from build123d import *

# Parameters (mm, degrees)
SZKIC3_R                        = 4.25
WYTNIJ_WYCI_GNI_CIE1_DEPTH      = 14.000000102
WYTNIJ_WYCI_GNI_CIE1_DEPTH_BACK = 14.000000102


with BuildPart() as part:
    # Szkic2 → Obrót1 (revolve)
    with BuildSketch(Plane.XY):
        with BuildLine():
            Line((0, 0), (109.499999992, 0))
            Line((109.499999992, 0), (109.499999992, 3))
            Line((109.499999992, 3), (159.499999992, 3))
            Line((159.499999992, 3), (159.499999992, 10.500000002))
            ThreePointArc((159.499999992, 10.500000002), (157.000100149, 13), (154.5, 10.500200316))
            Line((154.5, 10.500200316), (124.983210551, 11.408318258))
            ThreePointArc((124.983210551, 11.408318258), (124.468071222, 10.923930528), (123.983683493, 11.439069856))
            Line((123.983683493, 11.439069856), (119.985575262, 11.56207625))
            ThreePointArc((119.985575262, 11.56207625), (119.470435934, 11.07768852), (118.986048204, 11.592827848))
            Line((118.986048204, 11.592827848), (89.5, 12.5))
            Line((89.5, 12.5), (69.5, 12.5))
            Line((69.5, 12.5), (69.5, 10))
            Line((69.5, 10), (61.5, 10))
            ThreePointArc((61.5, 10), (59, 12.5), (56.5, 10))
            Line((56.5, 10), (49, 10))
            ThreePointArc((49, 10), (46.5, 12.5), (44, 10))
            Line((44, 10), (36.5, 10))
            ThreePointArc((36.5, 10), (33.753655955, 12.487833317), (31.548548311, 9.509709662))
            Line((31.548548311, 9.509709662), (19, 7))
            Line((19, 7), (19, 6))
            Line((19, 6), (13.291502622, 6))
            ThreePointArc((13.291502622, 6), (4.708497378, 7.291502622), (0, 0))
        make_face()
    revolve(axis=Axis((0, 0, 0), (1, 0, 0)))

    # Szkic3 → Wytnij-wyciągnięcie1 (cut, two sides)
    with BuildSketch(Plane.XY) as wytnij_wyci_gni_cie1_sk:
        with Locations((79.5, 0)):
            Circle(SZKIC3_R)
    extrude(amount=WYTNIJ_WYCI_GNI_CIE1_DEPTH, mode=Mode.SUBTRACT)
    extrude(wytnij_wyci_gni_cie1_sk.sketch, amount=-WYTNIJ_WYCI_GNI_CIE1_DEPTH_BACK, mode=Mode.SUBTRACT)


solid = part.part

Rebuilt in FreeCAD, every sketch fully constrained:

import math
import FreeCAD as App
import Part
import Sketcher
from FreeCAD import Vector

doc = App.newDocument("Part")
body = doc.addObject("PartDesign::Body", "Body")

# Sketch on XY plane
sketch1 = body.newObject("Sketcher::SketchObject", "Sketch")
sketch1.AttachmentSupport = (doc.getObject("XY_Plane"), [""])
sketch1.MapMode = "FlatFace"
sketch1.addGeometry([
    Part.LineSegment(Vector(0, 0, 0), Vector(109.5, 0, 0)),  # 0
    Part.LineSegment(Vector(109.5, 0, 0), Vector(109.5, 3, 0)),  # 1
    Part.LineSegment(Vector(109.5, 3, 0), Vector(159.5, 3, 0)),  # 2
    Part.LineSegment(Vector(159.5, 3, 0), Vector(159.5, 10.5, 0)),  # 3
    Part.ArcOfCircle(Part.Circle(Vector(157, 10.5, 0), Vector(0, 0, 1), 2.5), math.radians(0), math.radians(180)),  # 4
    Part.LineSegment(Vector(154.5, 10.5, 0), Vector(125, 11.4, 0)),  # 5
    Part.ArcOfCircle(Part.Circle(Vector(124.5, 11.4, 0), Vector(0, 0, 1), 0.5), math.radians(178), math.radians(358)),  # 6
    Part.LineSegment(Vector(124, 11.4, 0), Vector(120, 11.6, 0)),  # 7
    Part.ArcOfCircle(Part.Circle(Vector(119.5, 11.6, 0), Vector(0, 0, 1), 0.5), math.radians(178), math.radians(358)),  # 8
    Part.LineSegment(Vector(119, 11.6, 0), Vector(89.5, 12.5, 0)),  # 9
    Part.LineSegment(Vector(89.5, 12.5, 0), Vector(69.5, 12.5, 0)),  # 10
    Part.LineSegment(Vector(69.5, 12.5, 0), Vector(69.5, 10, 0)),  # 11
    Part.LineSegment(Vector(69.5, 10, 0), Vector(61.5, 10, 0)),  # 12
    Part.ArcOfCircle(Part.Circle(Vector(59, 10, 0), Vector(0, 0, 1), 2.5), math.radians(0), math.radians(180)),  # 13
    Part.LineSegment(Vector(56.5, 10, 0), Vector(49, 10, 0)),  # 14
    Part.ArcOfCircle(Part.Circle(Vector(46.5, 10, 0), Vector(0, 0, 1), 2.5), math.radians(0), math.radians(180)),  # 15
    Part.LineSegment(Vector(44, 10, 0), Vector(36.5, 10, 0)),  # 16
    Part.ArcOfCircle(Part.Circle(Vector(34, 10, 0), Vector(0, 0, 1), 2.5), math.radians(0), math.radians(191)),  # 17
    Part.LineSegment(Vector(31.5, 9.5, 0), Vector(19, 7, 0)),  # 18
    Part.LineSegment(Vector(19, 7, 0), Vector(19, 6, 0)),  # 19
    Part.LineSegment(Vector(19, 6, 0), Vector(13.3, 6, 0)),  # 20
    Part.ArcOfCircle(Part.Circle(Vector(8, 0, 0), Vector(0, 0, 1), 8), math.radians(49), math.radians(180)),  # 21
], False)
sketch1.addConstraint([
    Sketcher.Constraint("Coincident", 0, 2, 1, 1),
    Sketcher.Constraint("Coincident", 1, 2, 2, 1),
    Sketcher.Constraint("Coincident", 2, 2, 3, 1),
    Sketcher.Constraint("Tangent", 3, 2, 4, 1),
    Sketcher.Constraint("Coincident", 4, 2, 5, 1),
    Sketcher.Constraint("Coincident", 5, 2, 6, 2),
    Sketcher.Constraint("Coincident", 6, 1, 7, 1),
    Sketcher.Constraint("Coincident", 7, 2, 8, 2),
    Sketcher.Constraint("Coincident", 8, 1, 9, 1),
    Sketcher.Constraint("Coincident", 9, 2, 10, 1),
    Sketcher.Constraint("Coincident", 10, 2, 11, 1),
    Sketcher.Constraint("Coincident", 11, 2, 12, 1),
    Sketcher.Constraint("Coincident", 12, 2, 13, 1),
    Sketcher.Constraint("Coincident", 13, 2, 14, 1),
    Sketcher.Constraint("Coincident", 14, 2, 15, 1),
    Sketcher.Constraint("Coincident", 15, 2, 16, 1),
    Sketcher.Constraint("Coincident", 16, 2, 17, 1),
    Sketcher.Constraint("Coincident", 17, 2, 18, 1),
    Sketcher.Constraint("Coincident", 18, 2, 19, 1),
    Sketcher.Constraint("Coincident", 19, 2, 20, 1),
    Sketcher.Constraint("Coincident", 20, 2, 21, 1),
    Sketcher.Constraint("Coincident", 21, 2, 0, 1),
    Sketcher.Constraint("Horizontal", 0),
    Sketcher.Constraint("Vertical", 1),
    Sketcher.Constraint("Horizontal", 2),
    Sketcher.Constraint("Vertical", 3),
    Sketcher.Constraint("Horizontal", 10),
    Sketcher.Constraint("Vertical", 11),
    Sketcher.Constraint("Horizontal", 12),
    Sketcher.Constraint("Horizontal", 14),
    Sketcher.Constraint("Horizontal", 16),
    Sketcher.Constraint("Vertical", 19),
    Sketcher.Constraint("Horizontal", 20),
    Sketcher.Constraint("Coincident", 21, 2, -1, 1),
    Sketcher.Constraint("Equal", 6, 8),
    Sketcher.Constraint("Equal", 4, 13),
    Sketcher.Constraint("Equal", 13, 15),
    Sketcher.Constraint("Equal", 15, 17),
    Sketcher.Constraint("PointOnObject", 21, 3, -1),
    Sketcher.Constraint("Parallel", 5, 7),
    Sketcher.Constraint("Parallel", 7, 9),
    Sketcher.Constraint("Horizontal", 13, 3, 15, 3),
    Sketcher.Constraint("Horizontal", 15, 3, 17, 3),
    Sketcher.Constraint("Horizontal", 17, 3, 11, 2),
    Sketcher.Constraint("Horizontal", 12, 2, 13, 2),
    Sketcher.Constraint("Horizontal", 14, 2, 15, 2),
    Sketcher.Constraint("Equal", 14, 16),
    Sketcher.Constraint("Equal", 16, 3),
    Sketcher.Constraint("Radius", 21, 8.0),
    Sketcher.Constraint("Radius", 4, 2.5),
    Sketcher.Constraint("Radius", 6, 0.5),
    Sketcher.Constraint("DistanceX", 2, 1, 2, 2, 50.0),
    Sketcher.Constraint("DistanceX", 10, 2, 10, 1, 20.0),
    Sketcher.Constraint("DistanceX", 12, 2, 12, 1, 8.0),
    Sketcher.Constraint("DistanceY", 1, 1, 1, 2, 3.0),
    Sketcher.Constraint("DistanceY", 19, 2, 19, 1, 1.0),
    Sketcher.Constraint("Distance", 7, 4.0),
    Sketcher.Constraint("DistanceX", 0, 1, 0, 2, 109.5),
    Sketcher.Constraint("DistanceX", 14, 2, 14, 1, 7.5),
    Sketcher.Constraint("DistanceY", 11, 2, 11, 1, 2.5),
    Sketcher.Constraint("DistanceX", -1, 1, 13, 3, 59.0),
    Sketcher.Constraint("DistanceY", -1, 1, 13, 3, 10.0),
    Sketcher.Constraint("DistanceX", -1, 1, 18, 2, 19.0),
    Sketcher.Constraint("DistanceY", -1, 1, 18, 2, 7.0),
    Sketcher.Constraint("Distance", 9, 29.5),
    Sketcher.Constraint("DistanceY", -1, 1, 4, 2, 10.5002),
    Sketcher.Constraint("DistanceX", 8, 3, 5, 2, 5.497399),
    Sketcher.Constraint("DistanceX", 8, 1, 6, 3, 5.497399),
    Sketcher.Constraint("DistanceX", -1, 1, 8, 3, 119.485812),
    Sketcher.Constraint("DistanceY", -1, 1, 6, 1, 11.43907),
    Sketcher.Constraint("DistanceX", -1, 1, 17, 2, 31.548548),
])
revolution = body.newObject("PartDesign::Revolution", "Revolution")
revolution.Profile = sketch1
revolution.ReferenceAxis = (sketch1, ["H_Axis"])
revolution.Angle = 360

# Sketch on XY plane
sketch2 = body.newObject("Sketcher::SketchObject", "Sketch001")
sketch2.AttachmentSupport = (doc.getObject("XY_Plane"), [""])
sketch2.MapMode = "FlatFace"
sketch2.addGeometry(Part.Circle(Vector(79.5, 0, 0), Vector(0, 0, 1), 4.2), False)
sketch2.addConstraint([
    Sketcher.Constraint("PointOnObject", 0, 3, -1),
    Sketcher.Constraint("Diameter", 0, 8.5),
    Sketcher.Constraint("DistanceX", -1, 1, 0, 3, 79.5),
])
pocket1 = body.newObject("PartDesign::Pocket", "Pocket")
pocket1.Profile = sketch2
pocket1.Type = "ThroughAll"
pocket1.Midplane = True

doc.recompute()
